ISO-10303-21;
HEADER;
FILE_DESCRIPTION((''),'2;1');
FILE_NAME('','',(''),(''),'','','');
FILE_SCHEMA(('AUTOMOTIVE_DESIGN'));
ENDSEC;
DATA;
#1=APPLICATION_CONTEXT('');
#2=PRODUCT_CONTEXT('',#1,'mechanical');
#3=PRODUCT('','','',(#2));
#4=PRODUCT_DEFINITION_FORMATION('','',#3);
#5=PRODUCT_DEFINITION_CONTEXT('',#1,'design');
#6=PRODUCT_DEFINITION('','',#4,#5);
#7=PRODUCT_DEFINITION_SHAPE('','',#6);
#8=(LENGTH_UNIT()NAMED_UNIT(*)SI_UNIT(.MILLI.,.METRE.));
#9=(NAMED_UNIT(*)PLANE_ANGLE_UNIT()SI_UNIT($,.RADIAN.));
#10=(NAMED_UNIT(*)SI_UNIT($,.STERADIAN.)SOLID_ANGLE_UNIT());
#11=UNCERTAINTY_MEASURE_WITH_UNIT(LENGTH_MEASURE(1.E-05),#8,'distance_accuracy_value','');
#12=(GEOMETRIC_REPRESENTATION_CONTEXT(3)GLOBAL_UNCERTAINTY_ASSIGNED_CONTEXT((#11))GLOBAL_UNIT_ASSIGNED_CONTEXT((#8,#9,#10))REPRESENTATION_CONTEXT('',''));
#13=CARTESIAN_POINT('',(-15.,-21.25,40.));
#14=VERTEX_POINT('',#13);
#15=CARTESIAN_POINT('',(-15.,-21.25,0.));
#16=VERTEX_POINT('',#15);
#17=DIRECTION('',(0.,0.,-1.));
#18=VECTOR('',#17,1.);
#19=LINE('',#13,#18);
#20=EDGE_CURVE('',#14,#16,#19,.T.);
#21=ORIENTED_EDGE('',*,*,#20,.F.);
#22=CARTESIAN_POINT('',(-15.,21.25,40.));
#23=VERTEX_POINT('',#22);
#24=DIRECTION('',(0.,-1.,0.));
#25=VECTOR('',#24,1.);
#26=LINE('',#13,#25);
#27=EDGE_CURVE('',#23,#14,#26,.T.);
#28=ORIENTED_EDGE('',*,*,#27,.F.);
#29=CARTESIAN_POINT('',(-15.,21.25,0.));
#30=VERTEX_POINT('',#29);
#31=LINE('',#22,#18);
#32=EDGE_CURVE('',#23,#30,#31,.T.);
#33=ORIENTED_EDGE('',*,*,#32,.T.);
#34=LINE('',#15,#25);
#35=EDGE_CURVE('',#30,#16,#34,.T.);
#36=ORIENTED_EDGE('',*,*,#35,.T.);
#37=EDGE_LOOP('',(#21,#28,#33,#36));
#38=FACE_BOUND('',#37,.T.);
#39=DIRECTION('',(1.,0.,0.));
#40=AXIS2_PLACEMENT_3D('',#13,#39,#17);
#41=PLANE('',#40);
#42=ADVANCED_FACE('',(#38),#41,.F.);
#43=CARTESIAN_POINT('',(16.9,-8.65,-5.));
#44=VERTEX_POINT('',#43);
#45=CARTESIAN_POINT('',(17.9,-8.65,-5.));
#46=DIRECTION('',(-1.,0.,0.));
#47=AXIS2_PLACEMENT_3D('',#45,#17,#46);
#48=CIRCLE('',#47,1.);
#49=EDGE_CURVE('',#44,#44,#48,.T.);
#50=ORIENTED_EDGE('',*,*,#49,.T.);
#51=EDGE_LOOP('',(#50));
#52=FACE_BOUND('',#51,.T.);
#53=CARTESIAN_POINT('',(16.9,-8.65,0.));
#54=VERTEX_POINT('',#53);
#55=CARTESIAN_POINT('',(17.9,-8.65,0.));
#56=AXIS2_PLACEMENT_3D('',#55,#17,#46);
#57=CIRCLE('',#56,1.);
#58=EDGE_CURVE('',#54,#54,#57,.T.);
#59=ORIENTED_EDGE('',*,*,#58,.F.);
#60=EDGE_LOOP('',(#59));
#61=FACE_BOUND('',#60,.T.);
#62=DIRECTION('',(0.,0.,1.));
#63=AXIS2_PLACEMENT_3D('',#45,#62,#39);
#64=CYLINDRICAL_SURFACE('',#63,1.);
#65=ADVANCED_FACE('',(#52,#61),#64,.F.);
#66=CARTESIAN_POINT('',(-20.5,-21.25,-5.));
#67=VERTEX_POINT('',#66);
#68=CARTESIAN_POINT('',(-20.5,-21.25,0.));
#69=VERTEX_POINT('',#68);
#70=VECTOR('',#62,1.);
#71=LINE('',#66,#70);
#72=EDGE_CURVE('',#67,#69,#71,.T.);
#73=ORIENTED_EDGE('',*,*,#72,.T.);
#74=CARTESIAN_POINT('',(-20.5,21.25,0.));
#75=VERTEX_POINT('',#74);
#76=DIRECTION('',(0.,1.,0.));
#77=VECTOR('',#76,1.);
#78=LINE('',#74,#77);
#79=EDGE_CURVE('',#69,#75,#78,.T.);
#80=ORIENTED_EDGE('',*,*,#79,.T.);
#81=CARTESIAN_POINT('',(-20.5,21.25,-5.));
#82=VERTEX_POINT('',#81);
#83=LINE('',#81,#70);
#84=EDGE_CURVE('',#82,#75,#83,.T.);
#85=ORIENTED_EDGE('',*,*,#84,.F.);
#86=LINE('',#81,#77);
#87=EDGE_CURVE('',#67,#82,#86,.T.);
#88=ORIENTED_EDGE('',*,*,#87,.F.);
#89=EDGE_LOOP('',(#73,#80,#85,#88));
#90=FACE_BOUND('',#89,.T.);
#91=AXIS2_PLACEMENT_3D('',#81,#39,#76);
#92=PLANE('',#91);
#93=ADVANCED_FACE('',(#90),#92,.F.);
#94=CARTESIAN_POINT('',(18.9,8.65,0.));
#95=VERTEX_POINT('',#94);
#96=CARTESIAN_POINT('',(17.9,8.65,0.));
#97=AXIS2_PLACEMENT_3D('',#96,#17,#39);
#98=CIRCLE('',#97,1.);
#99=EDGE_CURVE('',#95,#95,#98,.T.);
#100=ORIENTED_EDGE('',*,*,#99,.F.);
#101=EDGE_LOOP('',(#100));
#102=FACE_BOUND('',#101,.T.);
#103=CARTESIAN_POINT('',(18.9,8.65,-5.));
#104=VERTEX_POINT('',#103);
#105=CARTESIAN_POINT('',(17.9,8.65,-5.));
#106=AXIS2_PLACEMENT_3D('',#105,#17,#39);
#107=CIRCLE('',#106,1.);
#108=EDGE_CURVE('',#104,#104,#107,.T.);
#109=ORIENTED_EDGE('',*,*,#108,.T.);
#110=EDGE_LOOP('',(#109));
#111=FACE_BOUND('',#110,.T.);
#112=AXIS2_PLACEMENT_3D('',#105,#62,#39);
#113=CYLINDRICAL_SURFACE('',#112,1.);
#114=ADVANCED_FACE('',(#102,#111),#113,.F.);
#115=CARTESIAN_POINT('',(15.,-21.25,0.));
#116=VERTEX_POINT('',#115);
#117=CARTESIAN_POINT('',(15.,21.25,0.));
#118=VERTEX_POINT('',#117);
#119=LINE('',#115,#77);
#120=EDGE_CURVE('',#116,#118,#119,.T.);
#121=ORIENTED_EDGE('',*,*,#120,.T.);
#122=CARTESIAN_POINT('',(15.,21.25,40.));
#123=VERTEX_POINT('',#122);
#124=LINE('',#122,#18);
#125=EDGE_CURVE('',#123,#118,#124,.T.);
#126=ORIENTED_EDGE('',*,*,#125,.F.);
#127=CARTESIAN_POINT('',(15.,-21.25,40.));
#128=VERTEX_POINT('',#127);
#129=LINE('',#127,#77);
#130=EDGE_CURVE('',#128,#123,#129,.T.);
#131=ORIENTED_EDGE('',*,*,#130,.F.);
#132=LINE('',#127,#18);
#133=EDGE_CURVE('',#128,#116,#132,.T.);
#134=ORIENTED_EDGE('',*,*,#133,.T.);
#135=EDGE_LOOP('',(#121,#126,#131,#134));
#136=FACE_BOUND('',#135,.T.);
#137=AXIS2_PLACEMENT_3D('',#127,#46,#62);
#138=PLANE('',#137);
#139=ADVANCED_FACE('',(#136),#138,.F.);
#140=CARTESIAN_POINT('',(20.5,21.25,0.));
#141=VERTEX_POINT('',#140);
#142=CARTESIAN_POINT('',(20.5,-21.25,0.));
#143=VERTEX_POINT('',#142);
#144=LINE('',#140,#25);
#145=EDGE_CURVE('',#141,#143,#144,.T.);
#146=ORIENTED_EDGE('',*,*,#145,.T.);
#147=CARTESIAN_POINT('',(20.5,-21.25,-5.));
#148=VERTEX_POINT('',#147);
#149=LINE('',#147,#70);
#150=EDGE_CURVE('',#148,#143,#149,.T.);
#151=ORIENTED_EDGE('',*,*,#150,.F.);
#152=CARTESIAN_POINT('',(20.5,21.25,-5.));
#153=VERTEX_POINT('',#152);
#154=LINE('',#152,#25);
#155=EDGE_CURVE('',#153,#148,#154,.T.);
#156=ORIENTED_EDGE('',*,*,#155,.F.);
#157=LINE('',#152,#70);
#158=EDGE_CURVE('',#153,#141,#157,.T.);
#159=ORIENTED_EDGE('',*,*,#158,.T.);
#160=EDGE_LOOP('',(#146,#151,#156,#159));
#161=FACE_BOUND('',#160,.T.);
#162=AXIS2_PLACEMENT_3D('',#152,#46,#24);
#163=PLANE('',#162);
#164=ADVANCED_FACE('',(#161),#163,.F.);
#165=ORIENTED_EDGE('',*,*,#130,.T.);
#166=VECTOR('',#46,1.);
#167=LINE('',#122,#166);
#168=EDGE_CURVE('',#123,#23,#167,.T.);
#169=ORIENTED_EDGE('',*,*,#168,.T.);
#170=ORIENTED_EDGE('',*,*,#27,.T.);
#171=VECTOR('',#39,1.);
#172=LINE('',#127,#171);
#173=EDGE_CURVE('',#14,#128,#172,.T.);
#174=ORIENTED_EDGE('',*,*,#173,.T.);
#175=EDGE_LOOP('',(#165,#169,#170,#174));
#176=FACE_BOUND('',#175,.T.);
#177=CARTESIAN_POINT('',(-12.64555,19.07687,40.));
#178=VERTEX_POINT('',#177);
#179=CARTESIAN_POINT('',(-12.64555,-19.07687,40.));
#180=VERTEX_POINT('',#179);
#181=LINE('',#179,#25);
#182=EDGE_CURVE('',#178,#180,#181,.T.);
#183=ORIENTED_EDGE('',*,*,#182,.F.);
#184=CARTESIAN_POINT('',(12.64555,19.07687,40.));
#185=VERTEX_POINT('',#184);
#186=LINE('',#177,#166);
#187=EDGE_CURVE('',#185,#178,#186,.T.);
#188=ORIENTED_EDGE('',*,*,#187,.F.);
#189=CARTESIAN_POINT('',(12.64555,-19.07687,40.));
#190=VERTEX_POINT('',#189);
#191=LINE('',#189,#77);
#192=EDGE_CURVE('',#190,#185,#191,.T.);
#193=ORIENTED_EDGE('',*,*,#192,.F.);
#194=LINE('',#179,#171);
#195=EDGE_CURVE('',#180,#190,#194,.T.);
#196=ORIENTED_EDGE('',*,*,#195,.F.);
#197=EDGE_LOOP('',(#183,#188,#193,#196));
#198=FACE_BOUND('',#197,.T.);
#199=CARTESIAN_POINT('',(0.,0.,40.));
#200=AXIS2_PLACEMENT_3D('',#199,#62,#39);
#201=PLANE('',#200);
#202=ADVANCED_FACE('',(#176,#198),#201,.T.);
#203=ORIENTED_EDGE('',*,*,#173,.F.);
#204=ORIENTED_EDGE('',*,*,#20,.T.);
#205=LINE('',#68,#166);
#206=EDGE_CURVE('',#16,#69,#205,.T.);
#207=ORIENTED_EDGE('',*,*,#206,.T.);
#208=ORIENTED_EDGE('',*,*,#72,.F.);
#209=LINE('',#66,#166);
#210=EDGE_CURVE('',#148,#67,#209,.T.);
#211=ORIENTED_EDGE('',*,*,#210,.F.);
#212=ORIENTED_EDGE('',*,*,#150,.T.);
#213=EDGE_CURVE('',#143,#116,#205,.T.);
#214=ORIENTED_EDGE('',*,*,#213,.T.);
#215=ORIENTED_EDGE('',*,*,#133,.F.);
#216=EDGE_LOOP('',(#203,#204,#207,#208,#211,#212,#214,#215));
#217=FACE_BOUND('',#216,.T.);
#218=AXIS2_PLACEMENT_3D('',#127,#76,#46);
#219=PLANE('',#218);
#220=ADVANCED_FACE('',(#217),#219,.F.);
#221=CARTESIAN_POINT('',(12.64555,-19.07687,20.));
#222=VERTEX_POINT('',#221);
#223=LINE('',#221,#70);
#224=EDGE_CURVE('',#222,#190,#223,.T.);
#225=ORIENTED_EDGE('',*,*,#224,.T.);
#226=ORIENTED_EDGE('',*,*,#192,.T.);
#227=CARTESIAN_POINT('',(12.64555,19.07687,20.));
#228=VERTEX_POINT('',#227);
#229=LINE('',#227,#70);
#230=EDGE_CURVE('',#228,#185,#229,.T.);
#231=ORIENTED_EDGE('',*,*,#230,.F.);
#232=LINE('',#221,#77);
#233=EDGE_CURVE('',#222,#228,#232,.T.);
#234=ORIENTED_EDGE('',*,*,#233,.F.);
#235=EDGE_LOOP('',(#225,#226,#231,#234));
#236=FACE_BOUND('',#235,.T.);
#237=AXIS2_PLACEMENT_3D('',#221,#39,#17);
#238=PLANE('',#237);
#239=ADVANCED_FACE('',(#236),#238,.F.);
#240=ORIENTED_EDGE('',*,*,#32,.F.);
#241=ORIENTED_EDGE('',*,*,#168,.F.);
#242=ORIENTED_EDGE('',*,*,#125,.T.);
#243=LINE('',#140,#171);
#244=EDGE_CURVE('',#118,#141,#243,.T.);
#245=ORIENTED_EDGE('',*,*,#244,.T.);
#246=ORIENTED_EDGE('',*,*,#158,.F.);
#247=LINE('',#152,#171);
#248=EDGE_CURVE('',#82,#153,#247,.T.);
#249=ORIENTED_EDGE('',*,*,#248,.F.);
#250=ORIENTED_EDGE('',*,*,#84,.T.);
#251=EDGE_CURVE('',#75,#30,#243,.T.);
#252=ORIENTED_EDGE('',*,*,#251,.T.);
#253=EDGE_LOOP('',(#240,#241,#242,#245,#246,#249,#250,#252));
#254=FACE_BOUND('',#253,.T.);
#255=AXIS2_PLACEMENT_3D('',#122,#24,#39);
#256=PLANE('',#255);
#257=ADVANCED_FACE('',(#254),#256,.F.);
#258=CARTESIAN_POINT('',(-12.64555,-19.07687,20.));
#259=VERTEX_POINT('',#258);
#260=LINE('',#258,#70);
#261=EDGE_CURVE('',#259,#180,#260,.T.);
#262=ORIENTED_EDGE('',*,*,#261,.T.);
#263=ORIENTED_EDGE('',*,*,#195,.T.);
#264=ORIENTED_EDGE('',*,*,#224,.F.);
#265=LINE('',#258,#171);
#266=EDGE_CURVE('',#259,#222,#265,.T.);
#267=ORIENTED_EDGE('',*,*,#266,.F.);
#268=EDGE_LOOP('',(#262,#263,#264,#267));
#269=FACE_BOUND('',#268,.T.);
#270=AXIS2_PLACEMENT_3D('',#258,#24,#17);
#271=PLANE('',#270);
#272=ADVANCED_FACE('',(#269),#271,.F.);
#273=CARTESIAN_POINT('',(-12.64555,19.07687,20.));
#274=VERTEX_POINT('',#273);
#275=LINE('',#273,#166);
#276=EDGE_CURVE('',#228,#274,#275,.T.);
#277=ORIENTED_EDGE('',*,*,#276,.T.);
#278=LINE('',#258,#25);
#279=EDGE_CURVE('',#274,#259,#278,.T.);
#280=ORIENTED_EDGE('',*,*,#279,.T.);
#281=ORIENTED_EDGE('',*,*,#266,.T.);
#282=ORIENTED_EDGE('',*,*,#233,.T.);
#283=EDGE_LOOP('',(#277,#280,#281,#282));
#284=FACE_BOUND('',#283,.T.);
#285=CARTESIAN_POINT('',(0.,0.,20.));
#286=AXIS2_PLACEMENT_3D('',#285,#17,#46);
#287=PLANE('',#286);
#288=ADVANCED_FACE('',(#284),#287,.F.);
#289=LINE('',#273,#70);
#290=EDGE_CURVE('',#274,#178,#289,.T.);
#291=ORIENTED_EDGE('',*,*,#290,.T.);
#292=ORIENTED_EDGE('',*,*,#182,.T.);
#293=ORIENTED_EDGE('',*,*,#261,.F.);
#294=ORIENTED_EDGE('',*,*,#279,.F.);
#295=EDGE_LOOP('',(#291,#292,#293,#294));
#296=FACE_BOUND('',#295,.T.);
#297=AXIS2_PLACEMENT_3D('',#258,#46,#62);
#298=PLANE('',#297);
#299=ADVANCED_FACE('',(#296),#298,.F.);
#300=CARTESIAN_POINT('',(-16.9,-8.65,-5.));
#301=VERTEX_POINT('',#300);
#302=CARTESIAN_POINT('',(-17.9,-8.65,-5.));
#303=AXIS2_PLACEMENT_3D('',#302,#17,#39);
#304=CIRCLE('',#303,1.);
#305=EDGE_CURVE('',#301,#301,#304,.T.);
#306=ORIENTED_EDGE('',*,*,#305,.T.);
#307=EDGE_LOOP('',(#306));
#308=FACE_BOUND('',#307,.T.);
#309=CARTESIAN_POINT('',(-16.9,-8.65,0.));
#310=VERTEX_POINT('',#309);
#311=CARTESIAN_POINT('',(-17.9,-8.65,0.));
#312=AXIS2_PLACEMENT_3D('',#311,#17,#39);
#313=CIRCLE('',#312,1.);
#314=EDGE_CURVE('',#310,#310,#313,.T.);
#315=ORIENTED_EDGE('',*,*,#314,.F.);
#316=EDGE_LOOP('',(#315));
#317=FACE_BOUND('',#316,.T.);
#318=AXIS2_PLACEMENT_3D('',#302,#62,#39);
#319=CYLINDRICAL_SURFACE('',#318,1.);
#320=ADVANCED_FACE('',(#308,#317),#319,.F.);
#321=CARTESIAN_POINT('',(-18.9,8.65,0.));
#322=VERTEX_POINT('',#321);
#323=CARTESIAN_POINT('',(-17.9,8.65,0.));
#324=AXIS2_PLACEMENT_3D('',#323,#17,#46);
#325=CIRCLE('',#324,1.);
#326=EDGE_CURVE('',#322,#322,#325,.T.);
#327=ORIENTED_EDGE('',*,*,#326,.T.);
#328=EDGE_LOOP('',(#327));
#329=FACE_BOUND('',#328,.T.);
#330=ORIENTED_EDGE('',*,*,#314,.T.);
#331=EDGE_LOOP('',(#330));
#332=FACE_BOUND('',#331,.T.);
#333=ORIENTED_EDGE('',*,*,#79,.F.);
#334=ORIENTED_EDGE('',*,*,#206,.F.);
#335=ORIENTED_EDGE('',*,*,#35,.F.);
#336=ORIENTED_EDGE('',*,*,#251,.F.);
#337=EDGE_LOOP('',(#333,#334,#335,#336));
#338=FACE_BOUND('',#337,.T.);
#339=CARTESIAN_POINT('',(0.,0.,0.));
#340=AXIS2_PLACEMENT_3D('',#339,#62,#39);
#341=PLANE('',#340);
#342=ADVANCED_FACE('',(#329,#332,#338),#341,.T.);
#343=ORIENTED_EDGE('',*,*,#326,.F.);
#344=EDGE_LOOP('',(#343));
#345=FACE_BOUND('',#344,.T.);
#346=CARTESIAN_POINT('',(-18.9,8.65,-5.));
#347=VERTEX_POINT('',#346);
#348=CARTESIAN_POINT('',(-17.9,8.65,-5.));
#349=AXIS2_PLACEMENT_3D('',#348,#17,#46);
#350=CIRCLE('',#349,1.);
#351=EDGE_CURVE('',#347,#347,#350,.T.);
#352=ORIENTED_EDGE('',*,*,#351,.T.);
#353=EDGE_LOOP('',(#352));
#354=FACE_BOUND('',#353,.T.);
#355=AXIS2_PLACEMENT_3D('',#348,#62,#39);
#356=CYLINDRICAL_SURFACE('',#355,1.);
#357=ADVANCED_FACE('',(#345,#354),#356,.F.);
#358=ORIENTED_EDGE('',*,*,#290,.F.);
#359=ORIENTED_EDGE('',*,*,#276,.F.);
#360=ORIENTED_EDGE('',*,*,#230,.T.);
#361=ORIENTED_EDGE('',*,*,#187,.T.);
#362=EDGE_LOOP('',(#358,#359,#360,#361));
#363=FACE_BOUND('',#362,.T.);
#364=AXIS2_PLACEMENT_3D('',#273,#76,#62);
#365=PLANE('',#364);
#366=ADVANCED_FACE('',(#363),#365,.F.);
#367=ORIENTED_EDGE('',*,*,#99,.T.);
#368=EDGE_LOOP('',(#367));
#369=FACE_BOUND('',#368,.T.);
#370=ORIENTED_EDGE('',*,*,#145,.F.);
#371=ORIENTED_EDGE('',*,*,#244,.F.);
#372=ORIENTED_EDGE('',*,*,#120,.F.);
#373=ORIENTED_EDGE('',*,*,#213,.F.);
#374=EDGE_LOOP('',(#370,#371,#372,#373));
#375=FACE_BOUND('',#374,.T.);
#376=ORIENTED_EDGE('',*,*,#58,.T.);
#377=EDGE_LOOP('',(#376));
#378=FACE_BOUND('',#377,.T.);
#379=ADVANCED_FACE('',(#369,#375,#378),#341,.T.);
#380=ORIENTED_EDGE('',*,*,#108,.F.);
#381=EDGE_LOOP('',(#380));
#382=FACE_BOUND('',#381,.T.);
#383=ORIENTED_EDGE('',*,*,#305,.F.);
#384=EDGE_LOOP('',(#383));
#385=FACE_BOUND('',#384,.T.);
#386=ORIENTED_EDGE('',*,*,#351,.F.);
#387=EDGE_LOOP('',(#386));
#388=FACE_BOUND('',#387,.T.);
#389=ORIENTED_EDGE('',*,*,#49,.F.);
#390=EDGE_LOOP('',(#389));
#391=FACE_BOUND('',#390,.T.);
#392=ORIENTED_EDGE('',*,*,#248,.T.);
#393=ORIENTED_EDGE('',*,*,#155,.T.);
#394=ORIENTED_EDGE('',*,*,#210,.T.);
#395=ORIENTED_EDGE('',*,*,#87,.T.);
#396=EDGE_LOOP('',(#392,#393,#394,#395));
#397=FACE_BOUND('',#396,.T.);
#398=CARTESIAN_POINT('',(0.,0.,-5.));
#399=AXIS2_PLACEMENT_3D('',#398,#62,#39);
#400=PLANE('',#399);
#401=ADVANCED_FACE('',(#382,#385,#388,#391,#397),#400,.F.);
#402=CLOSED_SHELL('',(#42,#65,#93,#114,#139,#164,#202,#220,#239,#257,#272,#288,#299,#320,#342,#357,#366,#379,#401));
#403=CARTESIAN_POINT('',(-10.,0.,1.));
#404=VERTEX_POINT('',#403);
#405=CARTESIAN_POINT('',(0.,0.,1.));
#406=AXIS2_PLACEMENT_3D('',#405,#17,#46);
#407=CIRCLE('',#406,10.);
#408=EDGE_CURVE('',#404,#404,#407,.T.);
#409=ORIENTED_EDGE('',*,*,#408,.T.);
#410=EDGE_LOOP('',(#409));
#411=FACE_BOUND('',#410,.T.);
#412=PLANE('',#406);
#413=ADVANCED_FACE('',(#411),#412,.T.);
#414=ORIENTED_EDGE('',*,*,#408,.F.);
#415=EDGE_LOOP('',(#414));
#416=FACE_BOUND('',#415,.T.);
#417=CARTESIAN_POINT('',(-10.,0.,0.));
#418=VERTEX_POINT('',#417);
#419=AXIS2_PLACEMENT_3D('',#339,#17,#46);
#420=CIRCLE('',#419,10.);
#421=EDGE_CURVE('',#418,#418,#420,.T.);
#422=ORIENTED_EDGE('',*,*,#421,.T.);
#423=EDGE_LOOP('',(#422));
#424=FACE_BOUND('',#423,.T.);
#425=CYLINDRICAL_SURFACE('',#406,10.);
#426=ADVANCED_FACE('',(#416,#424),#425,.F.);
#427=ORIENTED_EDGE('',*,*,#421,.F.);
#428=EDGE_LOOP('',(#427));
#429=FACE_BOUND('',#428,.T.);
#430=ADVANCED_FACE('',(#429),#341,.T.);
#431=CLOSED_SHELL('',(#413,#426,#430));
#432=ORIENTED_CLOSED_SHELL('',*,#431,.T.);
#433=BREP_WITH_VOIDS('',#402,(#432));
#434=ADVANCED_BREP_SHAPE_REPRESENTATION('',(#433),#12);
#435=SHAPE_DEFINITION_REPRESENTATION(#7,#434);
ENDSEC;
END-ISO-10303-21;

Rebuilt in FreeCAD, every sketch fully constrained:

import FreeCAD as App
import Part
import Sketcher
from FreeCAD import Vector

doc = App.newDocument("Part")
params = doc.addObject("Spreadsheet::Sheet", "Params")
for row, (alias, value) in enumerate([
    ("sketch1_width", "30 mm"),
    ("sketch1_height", "42.5 mm"),
    ("pad1_length", "40 mm"),
    ("pocket1_length", "20 mm"),
    ("sketch3_diameter", "20 mm"),
    ("pocket2_length", "1 mm"),
    ("sketch4_diameter", "2 mm"),
    ("sketch4_width", "41 mm"),
    ("sketch4_height", "42.5 mm"),
    ("pad2_length", "5 mm"),
], start=1):
    params.set(f"A{row}", alias)
    params.set(f"B{row}", "=" + value)
    params.setAlias(f"B{row}", alias)

body = doc.addObject("PartDesign::Body", "Body")

# Sketch on XY plane
sketch1 = body.newObject("Sketcher::SketchObject", "Sketch")
sketch1.AttachmentSupport = (doc.getObject("XY_Plane"), [""])
sketch1.MapMode = "FlatFace"
sketch1.addGeometry(Part.LineSegment(Vector(-15, 21.25, 0), Vector(-15, -21.25, 0)), False)
sketch1.addGeometry(Part.LineSegment(Vector(-15, -21.25, 0), Vector(15, -21.25, 0)), False)
sketch1.addGeometry(Part.LineSegment(Vector(15, -21.25, 0), Vector(15, 21.25, 0)), False)
sketch1.addGeometry(Part.LineSegment(Vector(15, 21.25, 0), Vector(-15, 21.25, 0)), False)
sketch1.addConstraint(Sketcher.Constraint("Coincident", 0, 2, 1, 1))
sketch1.addConstraint(Sketcher.Constraint("Coincident", 1, 2, 2, 1))
sketch1.addConstraint(Sketcher.Constraint("Coincident", 2, 2, 3, 1))
sketch1.addConstraint(Sketcher.Constraint("Coincident", 3, 2, 0, 1))
sketch1.addConstraint(Sketcher.Constraint("Vertical", 0))
sketch1.addConstraint(Sketcher.Constraint("Horizontal", 1))
sketch1.addConstraint(Sketcher.Constraint("Vertical", 2))
sketch1.addConstraint(Sketcher.Constraint("Horizontal", 3))
sketch1.addConstraint(Sketcher.Constraint("Symmetric", 0, 2, 2, 2, -1, 1))
sketch1.addConstraint(Sketcher.Constraint("DistanceX", 1, 1, 1, 2, 30.0))
sketch1.addConstraint(Sketcher.Constraint("DistanceY", 0, 2, 0, 1, 42.5))
sketch1.setExpression("Constraints[9]", "Params.sketch1_width")
sketch1.setExpression("Constraints[10]", "Params.sketch1_height")
pad1 = body.newObject("PartDesign::Pad", "Pad")
pad1.Profile = sketch1
pad1.setExpression("Length", "Params.pad1_length")

# Sketch on XY plane
sketch2 = body.newObject("Sketcher::SketchObject", "Sketch001")
sketch2.AttachmentSupport = (doc.getObject("XY_Plane"), [""])
sketch2.MapMode = "FlatFace"
sketch2.AttachmentOffset = App.Placement(Vector(0, 0, 40), App.Rotation())
sketch2.addGeometry(Part.LineSegment(Vector(-12.64555, 19.07687, 0), Vector(-12.64555, -19.07687, 0)), False)
sketch2.addGeometry(Part.LineSegment(Vector(-12.64555, -19.07687, 0), Vector(12.64555, -19.07687, 0)), False)
sketch2.addGeometry(Part.LineSegment(Vector(12.64555, -19.07687, 0), Vector(12.64555, 19.07687, 0)), False)
sketch2.addGeometry(Part.LineSegment(Vector(12.64555, 19.07687, 0), Vector(-12.64555, 19.07687, 0)), False)
sketch2.addConstraint(Sketcher.Constraint("Coincident", 0, 2, 1, 1))
sketch2.addConstraint(Sketcher.Constraint("Coincident", 1, 2, 2, 1))
sketch2.addConstraint(Sketcher.Constraint("Coincident", 2, 2, 3, 1))
sketch2.addConstraint(Sketcher.Constraint("Coincident", 3, 2, 0, 1))
sketch2.addConstraint(Sketcher.Constraint("Vertical", 0))
sketch2.addConstraint(Sketcher.Constraint("Horizontal", 1))
sketch2.addConstraint(Sketcher.Constraint("Vertical", 2))
sketch2.addConstraint(Sketcher.Constraint("Horizontal", 3))
sketch2.addConstraint(Sketcher.Constraint("Symmetric", 0, 2, 2, 2, -1, 1))
sketch2.addConstraint(Sketcher.Constraint("DistanceX", 1, 1, 1, 2, 25.291099))
sketch2.addConstraint(Sketcher.Constraint("DistanceY", 0, 2, 0, 1, 38.15374))
pocket1 = body.newObject("PartDesign::Pocket", "Pocket")
pocket1.Profile = sketch2
pocket1.setExpression("Length", "Params.pocket1_length")

# Sketch on XY plane
sketch3 = body.newObject("Sketcher::SketchObject", "Sketch002")
sketch3.AttachmentSupport = (doc.getObject("XY_Plane"), [""])
sketch3.MapMode = "FlatFace"
sketch3.addGeometry(Part.Circle(Vector(0, 0, 0), Vector(0, 0, 1), 10), False)
sketch3.addConstraint(Sketcher.Constraint("Coincident", 0, 3, -1, 1))
sketch3.addConstraint(Sketcher.Constraint("Diameter", 0, 20.0))
sketch3.setExpression("Constraints[1]", "Params.sketch3_diameter")
pocket2 = body.newObject("PartDesign::Pocket", "Pocket001")
pocket2.Profile = sketch3
pocket2.setExpression("Length", "Params.pocket2_length")
pocket2.Reversed = True

# Sketch on XY plane
sketch4 = body.newObject("Sketcher::SketchObject", "Sketch003")
sketch4.AttachmentSupport = (doc.getObject("XY_Plane"), [""])
sketch4.MapMode = "FlatFace"
sketch4.addGeometry(Part.LineSegment(Vector(20.5, 21.25, 0), Vector(20.5, -21.25, 0)), False)
sketch4.addGeometry(Part.LineSegment(Vector(20.5, -21.25, 0), Vector(-20.5, -21.25, 0)), False)
sketch4.addGeometry(Part.LineSegment(Vector(-20.5, -21.25, 0), Vector(-20.5, 21.25, 0)), False)
sketch4.addGeometry(Part.LineSegment(Vector(-20.5, 21.25, 0), Vector(20.5, 21.25, 0)), False)
sketch4.addGeometry(Part.Circle(Vector(17.9, -8.65, 0), Vector(0, 0, 1), 1), False)
sketch4.addGeometry(Part.Circle(Vector(-17.9, -8.65, 0), Vector(0, 0, 1), 1), False)
sketch4.addGeometry(Part.Circle(Vector(17.9, 8.65, 0), Vector(0, 0, 1), 1), False)
sketch4.addGeometry(Part.Circle(Vector(-17.9, 8.65, 0), Vector(0, 0, 1), 1), False)
sketch4.addConstraint(Sketcher.Constraint("Coincident", 0, 2, 1, 1))
sketch4.addConstraint(Sketcher.Constraint("Coincident", 1, 2, 2, 1))
sketch4.addConstraint(Sketcher.Constraint("Coincident", 2, 2, 3, 1))
sketch4.addConstraint(Sketcher.Constraint("Coincident", 3, 2, 0, 1))
sketch4.addConstraint(Sketcher.Constraint("Vertical", 0))
sketch4.addConstraint(Sketcher.Constraint("Horizontal", 1))
sketch4.addConstraint(Sketcher.Constraint("Vertical", 2))
sketch4.addConstraint(Sketcher.Constraint("Horizontal", 3))
sketch4.addConstraint(Sketcher.Constraint("Equal", 4, 5))
sketch4.addConstraint(Sketcher.Constraint("Equal", 5, 6))
sketch4.addConstraint(Sketcher.Constraint("Equal", 6, 7))
sketch4.addConstraint(Sketcher.Constraint("Symmetric", 5, 3, 6, 3, -1, 1))
sketch4.addConstraint(Sketcher.Constraint("Symmetric", 4, 3, 7, 3, -1, 1))
sketch4.addConstraint(Sketcher.Constraint("Symmetric", 0, 2, 2, 2, -1, 1))
sketch4.addConstraint(Sketcher.Constraint("Symmetric", 4, 3, 5, 3, -2))
sketch4.addConstraint(Sketcher.Constraint("Diameter", 4, 2.0))
sketch4.addConstraint(Sketcher.Constraint("DistanceX", 1, 2, 1, 1, 41.0))
sketch4.addConstraint(Sketcher.Constraint("DistanceY", 0, 2, 0, 1, 42.5))
sketch4.addConstraint(Sketcher.Constraint("DistanceX", -1, 1, 4, 3, 17.9))
sketch4.addConstraint(Sketcher.Constraint("DistanceY", 4, 3, 6, 3, 17.3))
sketch4.setExpression("Constraints[15]", "Params.sketch4_diameter")
sketch4.setExpression("Constraints[16]", "Params.sketch4_width")
sketch4.setExpression("Constraints[17]", "Params.sketch4_height")
pad2 = body.newObject("PartDesign::Pad", "Pad001")
pad2.Profile = sketch4
pad2.setExpression("Length", "Params.pad2_length")
pad2.Reversed = True

doc.recompute()
